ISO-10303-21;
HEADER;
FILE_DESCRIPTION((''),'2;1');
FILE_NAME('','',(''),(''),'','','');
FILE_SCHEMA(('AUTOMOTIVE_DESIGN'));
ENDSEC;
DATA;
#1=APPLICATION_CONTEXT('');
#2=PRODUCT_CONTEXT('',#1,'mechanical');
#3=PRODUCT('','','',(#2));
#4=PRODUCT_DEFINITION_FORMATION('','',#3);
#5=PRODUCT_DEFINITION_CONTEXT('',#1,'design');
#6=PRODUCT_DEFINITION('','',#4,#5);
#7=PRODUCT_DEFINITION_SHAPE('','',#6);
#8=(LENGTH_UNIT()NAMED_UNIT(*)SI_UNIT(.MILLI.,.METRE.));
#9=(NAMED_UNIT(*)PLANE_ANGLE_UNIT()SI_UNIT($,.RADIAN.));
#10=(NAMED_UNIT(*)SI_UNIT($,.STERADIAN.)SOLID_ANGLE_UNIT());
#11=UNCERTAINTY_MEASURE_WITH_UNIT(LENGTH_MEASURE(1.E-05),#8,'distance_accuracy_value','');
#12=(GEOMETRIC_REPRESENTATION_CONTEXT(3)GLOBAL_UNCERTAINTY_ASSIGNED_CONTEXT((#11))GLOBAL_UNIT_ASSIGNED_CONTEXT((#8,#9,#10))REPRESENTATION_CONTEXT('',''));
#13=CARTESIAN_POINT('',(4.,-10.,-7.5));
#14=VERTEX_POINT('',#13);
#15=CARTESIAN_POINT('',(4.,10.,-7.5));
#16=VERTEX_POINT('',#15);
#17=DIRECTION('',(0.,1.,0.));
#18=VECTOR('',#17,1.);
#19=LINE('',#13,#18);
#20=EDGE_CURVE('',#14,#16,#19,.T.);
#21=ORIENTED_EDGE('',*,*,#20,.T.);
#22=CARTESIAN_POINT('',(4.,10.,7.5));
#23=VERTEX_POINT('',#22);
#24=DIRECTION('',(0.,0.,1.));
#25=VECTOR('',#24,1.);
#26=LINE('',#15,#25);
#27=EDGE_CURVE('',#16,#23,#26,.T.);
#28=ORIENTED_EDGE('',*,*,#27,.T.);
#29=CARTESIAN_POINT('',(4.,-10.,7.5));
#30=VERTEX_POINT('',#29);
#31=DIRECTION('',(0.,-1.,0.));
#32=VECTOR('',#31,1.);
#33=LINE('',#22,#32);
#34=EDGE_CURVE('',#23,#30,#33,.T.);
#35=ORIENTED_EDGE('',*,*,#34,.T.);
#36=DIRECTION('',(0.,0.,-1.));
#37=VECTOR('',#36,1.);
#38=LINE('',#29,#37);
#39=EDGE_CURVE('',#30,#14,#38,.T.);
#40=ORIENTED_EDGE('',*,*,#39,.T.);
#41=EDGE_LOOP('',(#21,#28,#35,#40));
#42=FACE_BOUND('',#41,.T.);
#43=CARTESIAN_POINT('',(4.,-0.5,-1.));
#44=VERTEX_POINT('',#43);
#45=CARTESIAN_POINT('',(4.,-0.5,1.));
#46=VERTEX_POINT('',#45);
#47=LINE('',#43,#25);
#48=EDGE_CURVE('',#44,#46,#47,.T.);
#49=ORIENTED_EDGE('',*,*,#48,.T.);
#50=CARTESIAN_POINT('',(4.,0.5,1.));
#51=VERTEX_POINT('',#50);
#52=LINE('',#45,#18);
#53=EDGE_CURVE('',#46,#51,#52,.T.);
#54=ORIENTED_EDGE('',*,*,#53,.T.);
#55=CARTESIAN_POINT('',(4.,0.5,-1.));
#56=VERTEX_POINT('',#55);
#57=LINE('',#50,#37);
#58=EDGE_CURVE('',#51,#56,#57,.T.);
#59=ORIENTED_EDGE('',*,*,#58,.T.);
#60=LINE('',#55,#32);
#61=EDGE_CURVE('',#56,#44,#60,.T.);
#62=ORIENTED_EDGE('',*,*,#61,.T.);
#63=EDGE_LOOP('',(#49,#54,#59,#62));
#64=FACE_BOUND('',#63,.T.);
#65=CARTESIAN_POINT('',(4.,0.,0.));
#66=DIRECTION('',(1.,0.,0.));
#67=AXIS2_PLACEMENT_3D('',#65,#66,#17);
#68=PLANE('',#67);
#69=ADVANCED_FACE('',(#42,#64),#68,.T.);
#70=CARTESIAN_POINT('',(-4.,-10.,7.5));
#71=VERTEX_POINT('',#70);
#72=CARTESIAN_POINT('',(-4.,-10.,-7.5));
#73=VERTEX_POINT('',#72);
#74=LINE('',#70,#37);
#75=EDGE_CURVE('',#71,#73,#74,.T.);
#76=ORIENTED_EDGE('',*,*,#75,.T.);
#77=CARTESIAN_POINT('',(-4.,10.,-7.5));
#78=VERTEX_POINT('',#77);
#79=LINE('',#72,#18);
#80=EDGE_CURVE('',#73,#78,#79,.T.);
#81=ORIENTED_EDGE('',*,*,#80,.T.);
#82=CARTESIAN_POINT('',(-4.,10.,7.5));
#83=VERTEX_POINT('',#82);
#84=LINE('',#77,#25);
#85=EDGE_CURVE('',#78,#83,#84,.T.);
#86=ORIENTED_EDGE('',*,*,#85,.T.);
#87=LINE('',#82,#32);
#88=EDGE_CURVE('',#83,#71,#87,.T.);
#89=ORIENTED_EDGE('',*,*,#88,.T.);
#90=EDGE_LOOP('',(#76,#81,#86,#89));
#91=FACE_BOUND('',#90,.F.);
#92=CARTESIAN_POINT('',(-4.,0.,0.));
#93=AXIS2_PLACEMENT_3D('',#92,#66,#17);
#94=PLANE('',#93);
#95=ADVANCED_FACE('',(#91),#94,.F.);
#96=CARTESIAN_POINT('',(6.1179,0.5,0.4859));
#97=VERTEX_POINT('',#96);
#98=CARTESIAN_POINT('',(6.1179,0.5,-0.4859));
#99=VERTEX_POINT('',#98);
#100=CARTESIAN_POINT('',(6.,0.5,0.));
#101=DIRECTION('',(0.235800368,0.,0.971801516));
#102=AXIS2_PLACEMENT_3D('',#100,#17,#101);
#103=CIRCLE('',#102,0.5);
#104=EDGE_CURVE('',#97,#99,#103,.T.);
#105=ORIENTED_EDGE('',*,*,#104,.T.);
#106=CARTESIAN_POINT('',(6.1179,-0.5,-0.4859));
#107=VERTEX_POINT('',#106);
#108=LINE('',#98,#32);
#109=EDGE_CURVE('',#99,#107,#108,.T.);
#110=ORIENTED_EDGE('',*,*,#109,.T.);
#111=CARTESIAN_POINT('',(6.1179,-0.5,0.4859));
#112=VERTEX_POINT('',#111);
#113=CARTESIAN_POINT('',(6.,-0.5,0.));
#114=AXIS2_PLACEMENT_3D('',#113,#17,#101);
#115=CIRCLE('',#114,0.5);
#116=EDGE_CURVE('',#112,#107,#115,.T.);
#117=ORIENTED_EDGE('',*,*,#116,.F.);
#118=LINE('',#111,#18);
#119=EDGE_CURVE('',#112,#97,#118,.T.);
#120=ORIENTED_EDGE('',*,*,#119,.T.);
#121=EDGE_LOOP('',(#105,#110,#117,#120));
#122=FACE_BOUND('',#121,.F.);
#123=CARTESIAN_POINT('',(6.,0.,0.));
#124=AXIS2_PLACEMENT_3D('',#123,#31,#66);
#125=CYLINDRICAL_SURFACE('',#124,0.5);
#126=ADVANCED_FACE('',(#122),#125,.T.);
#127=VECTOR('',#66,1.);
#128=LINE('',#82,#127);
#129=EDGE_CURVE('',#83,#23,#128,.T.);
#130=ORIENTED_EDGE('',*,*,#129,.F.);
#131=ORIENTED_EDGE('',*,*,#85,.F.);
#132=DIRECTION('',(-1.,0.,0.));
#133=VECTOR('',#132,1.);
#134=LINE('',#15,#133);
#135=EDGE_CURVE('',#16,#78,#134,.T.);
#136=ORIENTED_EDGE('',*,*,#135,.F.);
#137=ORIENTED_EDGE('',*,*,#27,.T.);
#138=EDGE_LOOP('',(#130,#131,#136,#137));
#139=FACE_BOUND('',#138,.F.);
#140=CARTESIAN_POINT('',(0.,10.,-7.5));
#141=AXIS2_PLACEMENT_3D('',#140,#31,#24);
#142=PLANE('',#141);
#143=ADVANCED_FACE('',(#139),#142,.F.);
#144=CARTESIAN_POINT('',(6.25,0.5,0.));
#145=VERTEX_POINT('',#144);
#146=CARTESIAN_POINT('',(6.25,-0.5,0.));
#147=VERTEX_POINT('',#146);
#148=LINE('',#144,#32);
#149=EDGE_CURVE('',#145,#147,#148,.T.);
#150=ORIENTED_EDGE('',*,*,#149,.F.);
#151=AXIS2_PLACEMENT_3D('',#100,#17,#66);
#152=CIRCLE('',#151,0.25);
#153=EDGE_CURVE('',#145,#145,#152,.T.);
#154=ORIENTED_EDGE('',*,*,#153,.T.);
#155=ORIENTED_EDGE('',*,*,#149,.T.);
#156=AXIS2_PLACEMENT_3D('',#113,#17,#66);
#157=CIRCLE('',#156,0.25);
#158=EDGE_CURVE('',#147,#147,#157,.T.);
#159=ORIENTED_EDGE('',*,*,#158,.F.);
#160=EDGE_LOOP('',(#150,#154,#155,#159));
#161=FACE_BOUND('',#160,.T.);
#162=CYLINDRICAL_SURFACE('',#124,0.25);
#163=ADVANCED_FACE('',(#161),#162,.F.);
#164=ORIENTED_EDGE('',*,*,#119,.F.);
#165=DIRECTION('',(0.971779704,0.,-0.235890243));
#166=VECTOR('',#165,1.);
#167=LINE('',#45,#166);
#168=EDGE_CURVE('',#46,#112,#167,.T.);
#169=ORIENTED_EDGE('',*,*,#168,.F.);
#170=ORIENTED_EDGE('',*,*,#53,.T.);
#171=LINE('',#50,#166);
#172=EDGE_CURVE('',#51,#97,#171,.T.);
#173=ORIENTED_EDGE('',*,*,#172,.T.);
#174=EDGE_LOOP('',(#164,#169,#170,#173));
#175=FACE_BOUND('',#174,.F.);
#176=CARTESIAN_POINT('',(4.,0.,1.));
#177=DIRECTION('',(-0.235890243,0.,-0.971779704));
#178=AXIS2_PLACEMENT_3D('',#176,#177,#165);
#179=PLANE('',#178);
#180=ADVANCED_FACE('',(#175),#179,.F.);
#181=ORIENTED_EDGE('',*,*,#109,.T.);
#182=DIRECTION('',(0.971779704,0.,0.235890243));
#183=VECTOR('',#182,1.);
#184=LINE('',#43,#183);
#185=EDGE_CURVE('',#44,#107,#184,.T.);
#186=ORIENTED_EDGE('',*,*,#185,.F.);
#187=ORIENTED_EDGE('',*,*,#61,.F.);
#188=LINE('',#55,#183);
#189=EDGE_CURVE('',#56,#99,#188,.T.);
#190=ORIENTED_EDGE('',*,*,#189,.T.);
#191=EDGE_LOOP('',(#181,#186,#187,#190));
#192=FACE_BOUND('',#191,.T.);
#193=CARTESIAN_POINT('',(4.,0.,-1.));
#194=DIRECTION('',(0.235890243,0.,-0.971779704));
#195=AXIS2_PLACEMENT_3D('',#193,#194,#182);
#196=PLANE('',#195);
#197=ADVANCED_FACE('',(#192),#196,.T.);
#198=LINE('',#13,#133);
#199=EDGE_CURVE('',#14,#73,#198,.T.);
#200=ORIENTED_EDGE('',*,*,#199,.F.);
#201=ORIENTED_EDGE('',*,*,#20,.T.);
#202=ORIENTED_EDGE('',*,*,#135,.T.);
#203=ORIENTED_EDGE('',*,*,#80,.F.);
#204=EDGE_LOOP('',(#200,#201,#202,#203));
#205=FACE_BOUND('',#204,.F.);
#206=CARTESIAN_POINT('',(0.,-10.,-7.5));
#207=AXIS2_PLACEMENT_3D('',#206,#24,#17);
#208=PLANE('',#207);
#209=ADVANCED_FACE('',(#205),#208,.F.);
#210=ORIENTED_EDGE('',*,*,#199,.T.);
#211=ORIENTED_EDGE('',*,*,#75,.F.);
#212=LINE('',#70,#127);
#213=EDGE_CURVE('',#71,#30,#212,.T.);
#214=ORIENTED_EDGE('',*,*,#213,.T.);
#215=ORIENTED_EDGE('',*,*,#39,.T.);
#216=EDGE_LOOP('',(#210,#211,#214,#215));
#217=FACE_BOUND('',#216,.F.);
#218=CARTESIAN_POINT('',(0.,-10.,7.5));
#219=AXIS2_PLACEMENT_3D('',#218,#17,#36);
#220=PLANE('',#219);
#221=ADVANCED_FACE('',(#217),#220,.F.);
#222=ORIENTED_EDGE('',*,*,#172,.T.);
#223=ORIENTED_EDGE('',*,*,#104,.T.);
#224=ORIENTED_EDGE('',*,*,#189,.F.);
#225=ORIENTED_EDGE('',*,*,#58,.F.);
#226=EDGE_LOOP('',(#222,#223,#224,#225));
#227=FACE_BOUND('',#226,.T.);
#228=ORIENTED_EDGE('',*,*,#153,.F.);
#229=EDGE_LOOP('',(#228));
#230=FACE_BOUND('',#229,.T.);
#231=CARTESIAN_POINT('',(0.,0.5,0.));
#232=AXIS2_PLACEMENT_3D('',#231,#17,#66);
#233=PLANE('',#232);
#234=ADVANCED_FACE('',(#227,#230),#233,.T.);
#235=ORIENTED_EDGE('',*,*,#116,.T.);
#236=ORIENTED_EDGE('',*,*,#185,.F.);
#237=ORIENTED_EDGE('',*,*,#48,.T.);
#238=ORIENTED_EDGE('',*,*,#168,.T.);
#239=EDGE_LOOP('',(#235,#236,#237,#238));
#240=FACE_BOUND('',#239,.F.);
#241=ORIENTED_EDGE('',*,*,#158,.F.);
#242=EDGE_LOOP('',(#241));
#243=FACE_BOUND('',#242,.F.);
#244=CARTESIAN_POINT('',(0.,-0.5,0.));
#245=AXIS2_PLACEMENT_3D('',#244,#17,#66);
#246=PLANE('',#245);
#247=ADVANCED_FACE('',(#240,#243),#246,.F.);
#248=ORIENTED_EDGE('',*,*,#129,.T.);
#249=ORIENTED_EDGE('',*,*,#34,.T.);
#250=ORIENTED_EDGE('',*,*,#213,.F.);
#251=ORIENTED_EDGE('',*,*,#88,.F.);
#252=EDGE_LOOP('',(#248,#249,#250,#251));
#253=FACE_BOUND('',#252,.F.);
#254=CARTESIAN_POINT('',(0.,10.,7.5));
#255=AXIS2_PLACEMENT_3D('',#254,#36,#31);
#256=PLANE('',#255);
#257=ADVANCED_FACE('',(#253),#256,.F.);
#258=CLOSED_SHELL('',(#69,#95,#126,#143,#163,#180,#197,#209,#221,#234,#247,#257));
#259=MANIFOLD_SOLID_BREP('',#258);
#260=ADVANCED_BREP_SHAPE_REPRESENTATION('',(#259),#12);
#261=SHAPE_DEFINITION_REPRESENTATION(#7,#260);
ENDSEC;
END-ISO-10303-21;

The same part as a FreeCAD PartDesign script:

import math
import FreeCAD as App
import Part
import Sketcher
Q = App.Units.Quantity


def add_polygon(sketch, points):
    """Adds a closed chain of lines whose ends are joined by coincident constraints."""
    first, n = sketch.GeometryCount, len(points)
    for a, b in zip(points, points[1:] + points[:1]):
        sketch.addGeometry(Part.LineSegment(App.Vector(*a, 0), App.Vector(*b, 0)), False)
    for i in range(n):
        sketch.addConstraint(Sketcher.Constraint("Coincident", first + i, 2, first + (i + 1) % n, 1))

doc = App.newDocument("Part")
body = doc.addObject("PartDesign::Body", "Body")

# Sketch on YZ plane
sketch1 = body.newObject("Sketcher::SketchObject", "Sketch")
sketch1.AttachmentSupport = (doc.getObject("YZ_Plane"), [""])
sketch1.MapMode = "FlatFace"
add_polygon(sketch1, [(10, -7.5), (10, 7.5), (-10, 7.5), (-10, -7.5)])  # lines 0-3
sketch1.addConstraint(Sketcher.Constraint("Vertical", 0))
sketch1.addConstraint(Sketcher.Constraint("Horizontal", 1))
sketch1.addConstraint(Sketcher.Constraint("Vertical", 2))
sketch1.addConstraint(Sketcher.Constraint("Horizontal", 3))
sketch1.addConstraint(Sketcher.Constraint("Symmetric", 0, 2, 2, 2, -1, 1))
sketch1.addConstraint(Sketcher.Constraint("DistanceX", 1, 2, 1, 1, Q("20 mm")))
sketch1.addConstraint(Sketcher.Constraint("DistanceY", 0, 1, 0, 2, Q("15 mm")))
pad1 = body.newObject("PartDesign::Pad", "Pad")
pad1.Profile = sketch1
pad1.Length = 8
pad1.Midplane = True

# Sketch on XZ plane
sketch2 = body.newObject("Sketcher::SketchObject", "Sketch001")
sketch2.AttachmentSupport = (doc.getObject("XZ_Plane"), [""])
sketch2.MapMode = "FlatFace"
sketch2.addGeometry(Part.LineSegment(App.Vector(4, -1, 0), App.Vector(4, 1, 0)), False)
sketch2.addGeometry(Part.LineSegment(App.Vector(4, 1, 0), App.Vector(6.1179, 0.4859, 0)), False)
sketch2.addGeometry(Part.ArcOfCircle(Part.Circle(App.Vector(6, 0, 0), App.Vector(0, 0, 1), 0.5), math.radians(-76.361194), math.radians(76.361194)), False)
sketch2.addGeometry(Part.LineSegment(App.Vector(6.1179, -0.4859, 0), App.Vector(4, -1, 0)), False)
sketch2.addGeometry(Part.Circle(App.Vector(6, 0, 0), App.Vector(0, 0, 1), 0.25), False)
sketch2.addConstraint(Sketcher.Constraint("Coincident", 0, 2, 1, 1))
sketch2.addConstraint(Sketcher.Constraint("Tangent", 1, 2, 2, 2))
sketch2.addConstraint(Sketcher.Constraint("Tangent", 2, 1, 3, 1))
sketch2.addConstraint(Sketcher.Constraint("Coincident", 3, 2, 0, 1))
sketch2.addConstraint(Sketcher.Constraint("Vertical", 0))
sketch2.addConstraint(Sketcher.Constraint("Coincident", 4, 3, 2, 3))
sketch2.addConstraint(Sketcher.Constraint("Symmetric", 1, 2, 2, 1, -1))
sketch2.addConstraint(Sketcher.Constraint("Diameter", 4, Q("0.5 mm")))
sketch2.addConstraint(Sketcher.Constraint("Radius", 2, Q("0.5 mm")))
sketch2.addConstraint(Sketcher.Constraint("DistanceY", 0, 1, 0, 2, Q("2 mm")))
sketch2.addConstraint(Sketcher.Constraint("DistanceX", 0, 2, 2, 3, Q("2 mm")))
sketch2.addConstraint(Sketcher.Constraint("DistanceX", -1, 1, 2, 3, Q("6 mm")))
pad2 = body.newObject("PartDesign::Pad", "Pad001")
pad2.Profile = sketch2
pad2.Length = 1
pad2.Midplane = True

doc.recompute()
